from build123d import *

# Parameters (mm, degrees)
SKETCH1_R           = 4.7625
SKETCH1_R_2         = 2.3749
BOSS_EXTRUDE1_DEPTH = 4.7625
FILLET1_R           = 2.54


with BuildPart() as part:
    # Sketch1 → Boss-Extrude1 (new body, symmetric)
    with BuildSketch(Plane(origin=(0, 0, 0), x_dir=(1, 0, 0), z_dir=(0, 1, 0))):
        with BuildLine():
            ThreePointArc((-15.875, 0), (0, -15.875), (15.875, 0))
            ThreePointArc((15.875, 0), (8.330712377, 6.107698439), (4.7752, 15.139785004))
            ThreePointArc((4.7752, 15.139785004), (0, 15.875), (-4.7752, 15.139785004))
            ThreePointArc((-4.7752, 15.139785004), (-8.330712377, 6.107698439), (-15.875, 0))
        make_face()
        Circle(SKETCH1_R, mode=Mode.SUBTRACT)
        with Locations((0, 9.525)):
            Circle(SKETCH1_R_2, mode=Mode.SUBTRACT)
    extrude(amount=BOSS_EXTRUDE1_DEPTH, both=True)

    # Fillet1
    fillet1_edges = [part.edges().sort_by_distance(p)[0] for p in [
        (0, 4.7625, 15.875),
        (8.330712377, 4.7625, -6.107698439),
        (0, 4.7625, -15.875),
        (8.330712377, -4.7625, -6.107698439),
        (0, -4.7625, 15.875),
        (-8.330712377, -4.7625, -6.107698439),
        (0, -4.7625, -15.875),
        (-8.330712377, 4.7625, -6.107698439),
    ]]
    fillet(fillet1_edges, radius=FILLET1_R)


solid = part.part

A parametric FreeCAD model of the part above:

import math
import FreeCAD as App
import Part
import Sketcher
from FreeCAD import Vector
Q = App.Units.Quantity


def edges_at(feature, points):
    """Names of the edges that pass closest to the given points."""
    edges = feature.Shape.Edges
    near = lambda p: min(range(len(edges)), key=lambda i: edges[i].distToShape(Part.Vertex(*p))[0])
    return sorted({f"Edge{near(p) + 1}" for p in points})

doc = App.newDocument("Part")
body = doc.addObject("PartDesign::Body", "Body")

# Sketch on XZ plane
sketch1 = body.newObject("Sketcher::SketchObject", "Sketch")
sketch1.AttachmentSupport = (doc.getObject("XZ_Plane"), [""])
sketch1.MapMode = "FlatFace"
sketch1.addGeometry(Part.ArcOfCircle(Part.Circle(Vector(0, 0, 0), Vector(0, 0, 1), 15.9), math.radians(0), math.radians(180)), False)
sketch1.addGeometry(Part.ArcOfCircle(Part.Circle(Vector(23.7, -17.4, 0), Vector(0, 0, 1), 19.1), math.radians(114), math.radians(173)), False)
sketch1.addGeometry(Part.ArcOfCircle(Part.Circle(Vector(0, 0, 0), Vector(0, 0, 1), 15.9), math.radians(-108), math.radians(-72)), False)
sketch1.addGeometry(Part.ArcOfCircle(Part.Circle(Vector(-23.7, -17.4, 0), Vector(0, 0, 1), 19.1), math.radians(7), math.radians(66)), False)
sketch1.addGeometry(Part.Circle(Vector(0, 0, 0), Vector(0, 0, 1), 4.8), False)
sketch1.addGeometry(Part.Circle(Vector(0, -9.5, 0), Vector(0, 0, 1), 2.4), False)
sketch1.addConstraint(Sketcher.Constraint("Coincident", 0, 1, 1, 1))
sketch1.addConstraint(Sketcher.Constraint("Coincident", 1, 2, 2, 2))
sketch1.addConstraint(Sketcher.Constraint("Coincident", 2, 1, 3, 1))
sketch1.addConstraint(Sketcher.Constraint("Coincident", 3, 2, 0, 2))
sketch1.addConstraint(Sketcher.Constraint("Coincident", 0, 3, -1, 1))
sketch1.addConstraint(Sketcher.Constraint("Coincident", 2, 3, -1, 1))
sketch1.addConstraint(Sketcher.Constraint("Coincident", 4, 3, -1, 1))
sketch1.addConstraint(Sketcher.Constraint("Equal", 0, 2))
sketch1.addConstraint(Sketcher.Constraint("Equal", 1, 3))
sketch1.addConstraint(Sketcher.Constraint("Symmetric", 1, 3, 3, 3, -2))
sketch1.addConstraint(Sketcher.Constraint("PointOnObject", 5, 3, -2))
sketch1.addConstraint(Sketcher.Constraint("PointOnObject", 0, 1, -1))
sketch1.addConstraint(Sketcher.Constraint("Radius", 1, Q("0.75 in")))
sketch1.addConstraint(Sketcher.Constraint("Diameter", 4, Q("0.375 in")))
sketch1.addConstraint(Sketcher.Constraint("Diameter", 5, Q("0.187 in")))
sketch1.addConstraint(Sketcher.Constraint("Radius", 0, Q("0.625 in")))
sketch1.addConstraint(Sketcher.Constraint("DistanceY", 5, 3, -1, 1, Q("0.375 in")))
sketch1.addConstraint(Sketcher.Constraint("DistanceX", -1, 1, 1, 2, Q("0.188 in")))
pad1 = body.newObject("PartDesign::Pad", "Pad")
pad1.Profile = sketch1
pad1.Length = Q("0.375 in")
pad1.Midplane = True
doc.recompute()

fillet = body.newObject("PartDesign::Fillet", "Fillet")
fillet.Base = (pad1, edges_at(pad1, [
    (0, 4.763, 15.875),
    (8.331, 4.763, -6.108),
    (0, 4.763, -15.875),
    (8.331, -4.763, -6.108),
    (0, -4.763, 15.875),
    (-8.331, -4.763, -6.108),
    (0, -4.763, -15.875),
    (-8.331, 4.763, -6.108),
]))
fillet.Radius = Q("0.1 in")

doc.recompute()
